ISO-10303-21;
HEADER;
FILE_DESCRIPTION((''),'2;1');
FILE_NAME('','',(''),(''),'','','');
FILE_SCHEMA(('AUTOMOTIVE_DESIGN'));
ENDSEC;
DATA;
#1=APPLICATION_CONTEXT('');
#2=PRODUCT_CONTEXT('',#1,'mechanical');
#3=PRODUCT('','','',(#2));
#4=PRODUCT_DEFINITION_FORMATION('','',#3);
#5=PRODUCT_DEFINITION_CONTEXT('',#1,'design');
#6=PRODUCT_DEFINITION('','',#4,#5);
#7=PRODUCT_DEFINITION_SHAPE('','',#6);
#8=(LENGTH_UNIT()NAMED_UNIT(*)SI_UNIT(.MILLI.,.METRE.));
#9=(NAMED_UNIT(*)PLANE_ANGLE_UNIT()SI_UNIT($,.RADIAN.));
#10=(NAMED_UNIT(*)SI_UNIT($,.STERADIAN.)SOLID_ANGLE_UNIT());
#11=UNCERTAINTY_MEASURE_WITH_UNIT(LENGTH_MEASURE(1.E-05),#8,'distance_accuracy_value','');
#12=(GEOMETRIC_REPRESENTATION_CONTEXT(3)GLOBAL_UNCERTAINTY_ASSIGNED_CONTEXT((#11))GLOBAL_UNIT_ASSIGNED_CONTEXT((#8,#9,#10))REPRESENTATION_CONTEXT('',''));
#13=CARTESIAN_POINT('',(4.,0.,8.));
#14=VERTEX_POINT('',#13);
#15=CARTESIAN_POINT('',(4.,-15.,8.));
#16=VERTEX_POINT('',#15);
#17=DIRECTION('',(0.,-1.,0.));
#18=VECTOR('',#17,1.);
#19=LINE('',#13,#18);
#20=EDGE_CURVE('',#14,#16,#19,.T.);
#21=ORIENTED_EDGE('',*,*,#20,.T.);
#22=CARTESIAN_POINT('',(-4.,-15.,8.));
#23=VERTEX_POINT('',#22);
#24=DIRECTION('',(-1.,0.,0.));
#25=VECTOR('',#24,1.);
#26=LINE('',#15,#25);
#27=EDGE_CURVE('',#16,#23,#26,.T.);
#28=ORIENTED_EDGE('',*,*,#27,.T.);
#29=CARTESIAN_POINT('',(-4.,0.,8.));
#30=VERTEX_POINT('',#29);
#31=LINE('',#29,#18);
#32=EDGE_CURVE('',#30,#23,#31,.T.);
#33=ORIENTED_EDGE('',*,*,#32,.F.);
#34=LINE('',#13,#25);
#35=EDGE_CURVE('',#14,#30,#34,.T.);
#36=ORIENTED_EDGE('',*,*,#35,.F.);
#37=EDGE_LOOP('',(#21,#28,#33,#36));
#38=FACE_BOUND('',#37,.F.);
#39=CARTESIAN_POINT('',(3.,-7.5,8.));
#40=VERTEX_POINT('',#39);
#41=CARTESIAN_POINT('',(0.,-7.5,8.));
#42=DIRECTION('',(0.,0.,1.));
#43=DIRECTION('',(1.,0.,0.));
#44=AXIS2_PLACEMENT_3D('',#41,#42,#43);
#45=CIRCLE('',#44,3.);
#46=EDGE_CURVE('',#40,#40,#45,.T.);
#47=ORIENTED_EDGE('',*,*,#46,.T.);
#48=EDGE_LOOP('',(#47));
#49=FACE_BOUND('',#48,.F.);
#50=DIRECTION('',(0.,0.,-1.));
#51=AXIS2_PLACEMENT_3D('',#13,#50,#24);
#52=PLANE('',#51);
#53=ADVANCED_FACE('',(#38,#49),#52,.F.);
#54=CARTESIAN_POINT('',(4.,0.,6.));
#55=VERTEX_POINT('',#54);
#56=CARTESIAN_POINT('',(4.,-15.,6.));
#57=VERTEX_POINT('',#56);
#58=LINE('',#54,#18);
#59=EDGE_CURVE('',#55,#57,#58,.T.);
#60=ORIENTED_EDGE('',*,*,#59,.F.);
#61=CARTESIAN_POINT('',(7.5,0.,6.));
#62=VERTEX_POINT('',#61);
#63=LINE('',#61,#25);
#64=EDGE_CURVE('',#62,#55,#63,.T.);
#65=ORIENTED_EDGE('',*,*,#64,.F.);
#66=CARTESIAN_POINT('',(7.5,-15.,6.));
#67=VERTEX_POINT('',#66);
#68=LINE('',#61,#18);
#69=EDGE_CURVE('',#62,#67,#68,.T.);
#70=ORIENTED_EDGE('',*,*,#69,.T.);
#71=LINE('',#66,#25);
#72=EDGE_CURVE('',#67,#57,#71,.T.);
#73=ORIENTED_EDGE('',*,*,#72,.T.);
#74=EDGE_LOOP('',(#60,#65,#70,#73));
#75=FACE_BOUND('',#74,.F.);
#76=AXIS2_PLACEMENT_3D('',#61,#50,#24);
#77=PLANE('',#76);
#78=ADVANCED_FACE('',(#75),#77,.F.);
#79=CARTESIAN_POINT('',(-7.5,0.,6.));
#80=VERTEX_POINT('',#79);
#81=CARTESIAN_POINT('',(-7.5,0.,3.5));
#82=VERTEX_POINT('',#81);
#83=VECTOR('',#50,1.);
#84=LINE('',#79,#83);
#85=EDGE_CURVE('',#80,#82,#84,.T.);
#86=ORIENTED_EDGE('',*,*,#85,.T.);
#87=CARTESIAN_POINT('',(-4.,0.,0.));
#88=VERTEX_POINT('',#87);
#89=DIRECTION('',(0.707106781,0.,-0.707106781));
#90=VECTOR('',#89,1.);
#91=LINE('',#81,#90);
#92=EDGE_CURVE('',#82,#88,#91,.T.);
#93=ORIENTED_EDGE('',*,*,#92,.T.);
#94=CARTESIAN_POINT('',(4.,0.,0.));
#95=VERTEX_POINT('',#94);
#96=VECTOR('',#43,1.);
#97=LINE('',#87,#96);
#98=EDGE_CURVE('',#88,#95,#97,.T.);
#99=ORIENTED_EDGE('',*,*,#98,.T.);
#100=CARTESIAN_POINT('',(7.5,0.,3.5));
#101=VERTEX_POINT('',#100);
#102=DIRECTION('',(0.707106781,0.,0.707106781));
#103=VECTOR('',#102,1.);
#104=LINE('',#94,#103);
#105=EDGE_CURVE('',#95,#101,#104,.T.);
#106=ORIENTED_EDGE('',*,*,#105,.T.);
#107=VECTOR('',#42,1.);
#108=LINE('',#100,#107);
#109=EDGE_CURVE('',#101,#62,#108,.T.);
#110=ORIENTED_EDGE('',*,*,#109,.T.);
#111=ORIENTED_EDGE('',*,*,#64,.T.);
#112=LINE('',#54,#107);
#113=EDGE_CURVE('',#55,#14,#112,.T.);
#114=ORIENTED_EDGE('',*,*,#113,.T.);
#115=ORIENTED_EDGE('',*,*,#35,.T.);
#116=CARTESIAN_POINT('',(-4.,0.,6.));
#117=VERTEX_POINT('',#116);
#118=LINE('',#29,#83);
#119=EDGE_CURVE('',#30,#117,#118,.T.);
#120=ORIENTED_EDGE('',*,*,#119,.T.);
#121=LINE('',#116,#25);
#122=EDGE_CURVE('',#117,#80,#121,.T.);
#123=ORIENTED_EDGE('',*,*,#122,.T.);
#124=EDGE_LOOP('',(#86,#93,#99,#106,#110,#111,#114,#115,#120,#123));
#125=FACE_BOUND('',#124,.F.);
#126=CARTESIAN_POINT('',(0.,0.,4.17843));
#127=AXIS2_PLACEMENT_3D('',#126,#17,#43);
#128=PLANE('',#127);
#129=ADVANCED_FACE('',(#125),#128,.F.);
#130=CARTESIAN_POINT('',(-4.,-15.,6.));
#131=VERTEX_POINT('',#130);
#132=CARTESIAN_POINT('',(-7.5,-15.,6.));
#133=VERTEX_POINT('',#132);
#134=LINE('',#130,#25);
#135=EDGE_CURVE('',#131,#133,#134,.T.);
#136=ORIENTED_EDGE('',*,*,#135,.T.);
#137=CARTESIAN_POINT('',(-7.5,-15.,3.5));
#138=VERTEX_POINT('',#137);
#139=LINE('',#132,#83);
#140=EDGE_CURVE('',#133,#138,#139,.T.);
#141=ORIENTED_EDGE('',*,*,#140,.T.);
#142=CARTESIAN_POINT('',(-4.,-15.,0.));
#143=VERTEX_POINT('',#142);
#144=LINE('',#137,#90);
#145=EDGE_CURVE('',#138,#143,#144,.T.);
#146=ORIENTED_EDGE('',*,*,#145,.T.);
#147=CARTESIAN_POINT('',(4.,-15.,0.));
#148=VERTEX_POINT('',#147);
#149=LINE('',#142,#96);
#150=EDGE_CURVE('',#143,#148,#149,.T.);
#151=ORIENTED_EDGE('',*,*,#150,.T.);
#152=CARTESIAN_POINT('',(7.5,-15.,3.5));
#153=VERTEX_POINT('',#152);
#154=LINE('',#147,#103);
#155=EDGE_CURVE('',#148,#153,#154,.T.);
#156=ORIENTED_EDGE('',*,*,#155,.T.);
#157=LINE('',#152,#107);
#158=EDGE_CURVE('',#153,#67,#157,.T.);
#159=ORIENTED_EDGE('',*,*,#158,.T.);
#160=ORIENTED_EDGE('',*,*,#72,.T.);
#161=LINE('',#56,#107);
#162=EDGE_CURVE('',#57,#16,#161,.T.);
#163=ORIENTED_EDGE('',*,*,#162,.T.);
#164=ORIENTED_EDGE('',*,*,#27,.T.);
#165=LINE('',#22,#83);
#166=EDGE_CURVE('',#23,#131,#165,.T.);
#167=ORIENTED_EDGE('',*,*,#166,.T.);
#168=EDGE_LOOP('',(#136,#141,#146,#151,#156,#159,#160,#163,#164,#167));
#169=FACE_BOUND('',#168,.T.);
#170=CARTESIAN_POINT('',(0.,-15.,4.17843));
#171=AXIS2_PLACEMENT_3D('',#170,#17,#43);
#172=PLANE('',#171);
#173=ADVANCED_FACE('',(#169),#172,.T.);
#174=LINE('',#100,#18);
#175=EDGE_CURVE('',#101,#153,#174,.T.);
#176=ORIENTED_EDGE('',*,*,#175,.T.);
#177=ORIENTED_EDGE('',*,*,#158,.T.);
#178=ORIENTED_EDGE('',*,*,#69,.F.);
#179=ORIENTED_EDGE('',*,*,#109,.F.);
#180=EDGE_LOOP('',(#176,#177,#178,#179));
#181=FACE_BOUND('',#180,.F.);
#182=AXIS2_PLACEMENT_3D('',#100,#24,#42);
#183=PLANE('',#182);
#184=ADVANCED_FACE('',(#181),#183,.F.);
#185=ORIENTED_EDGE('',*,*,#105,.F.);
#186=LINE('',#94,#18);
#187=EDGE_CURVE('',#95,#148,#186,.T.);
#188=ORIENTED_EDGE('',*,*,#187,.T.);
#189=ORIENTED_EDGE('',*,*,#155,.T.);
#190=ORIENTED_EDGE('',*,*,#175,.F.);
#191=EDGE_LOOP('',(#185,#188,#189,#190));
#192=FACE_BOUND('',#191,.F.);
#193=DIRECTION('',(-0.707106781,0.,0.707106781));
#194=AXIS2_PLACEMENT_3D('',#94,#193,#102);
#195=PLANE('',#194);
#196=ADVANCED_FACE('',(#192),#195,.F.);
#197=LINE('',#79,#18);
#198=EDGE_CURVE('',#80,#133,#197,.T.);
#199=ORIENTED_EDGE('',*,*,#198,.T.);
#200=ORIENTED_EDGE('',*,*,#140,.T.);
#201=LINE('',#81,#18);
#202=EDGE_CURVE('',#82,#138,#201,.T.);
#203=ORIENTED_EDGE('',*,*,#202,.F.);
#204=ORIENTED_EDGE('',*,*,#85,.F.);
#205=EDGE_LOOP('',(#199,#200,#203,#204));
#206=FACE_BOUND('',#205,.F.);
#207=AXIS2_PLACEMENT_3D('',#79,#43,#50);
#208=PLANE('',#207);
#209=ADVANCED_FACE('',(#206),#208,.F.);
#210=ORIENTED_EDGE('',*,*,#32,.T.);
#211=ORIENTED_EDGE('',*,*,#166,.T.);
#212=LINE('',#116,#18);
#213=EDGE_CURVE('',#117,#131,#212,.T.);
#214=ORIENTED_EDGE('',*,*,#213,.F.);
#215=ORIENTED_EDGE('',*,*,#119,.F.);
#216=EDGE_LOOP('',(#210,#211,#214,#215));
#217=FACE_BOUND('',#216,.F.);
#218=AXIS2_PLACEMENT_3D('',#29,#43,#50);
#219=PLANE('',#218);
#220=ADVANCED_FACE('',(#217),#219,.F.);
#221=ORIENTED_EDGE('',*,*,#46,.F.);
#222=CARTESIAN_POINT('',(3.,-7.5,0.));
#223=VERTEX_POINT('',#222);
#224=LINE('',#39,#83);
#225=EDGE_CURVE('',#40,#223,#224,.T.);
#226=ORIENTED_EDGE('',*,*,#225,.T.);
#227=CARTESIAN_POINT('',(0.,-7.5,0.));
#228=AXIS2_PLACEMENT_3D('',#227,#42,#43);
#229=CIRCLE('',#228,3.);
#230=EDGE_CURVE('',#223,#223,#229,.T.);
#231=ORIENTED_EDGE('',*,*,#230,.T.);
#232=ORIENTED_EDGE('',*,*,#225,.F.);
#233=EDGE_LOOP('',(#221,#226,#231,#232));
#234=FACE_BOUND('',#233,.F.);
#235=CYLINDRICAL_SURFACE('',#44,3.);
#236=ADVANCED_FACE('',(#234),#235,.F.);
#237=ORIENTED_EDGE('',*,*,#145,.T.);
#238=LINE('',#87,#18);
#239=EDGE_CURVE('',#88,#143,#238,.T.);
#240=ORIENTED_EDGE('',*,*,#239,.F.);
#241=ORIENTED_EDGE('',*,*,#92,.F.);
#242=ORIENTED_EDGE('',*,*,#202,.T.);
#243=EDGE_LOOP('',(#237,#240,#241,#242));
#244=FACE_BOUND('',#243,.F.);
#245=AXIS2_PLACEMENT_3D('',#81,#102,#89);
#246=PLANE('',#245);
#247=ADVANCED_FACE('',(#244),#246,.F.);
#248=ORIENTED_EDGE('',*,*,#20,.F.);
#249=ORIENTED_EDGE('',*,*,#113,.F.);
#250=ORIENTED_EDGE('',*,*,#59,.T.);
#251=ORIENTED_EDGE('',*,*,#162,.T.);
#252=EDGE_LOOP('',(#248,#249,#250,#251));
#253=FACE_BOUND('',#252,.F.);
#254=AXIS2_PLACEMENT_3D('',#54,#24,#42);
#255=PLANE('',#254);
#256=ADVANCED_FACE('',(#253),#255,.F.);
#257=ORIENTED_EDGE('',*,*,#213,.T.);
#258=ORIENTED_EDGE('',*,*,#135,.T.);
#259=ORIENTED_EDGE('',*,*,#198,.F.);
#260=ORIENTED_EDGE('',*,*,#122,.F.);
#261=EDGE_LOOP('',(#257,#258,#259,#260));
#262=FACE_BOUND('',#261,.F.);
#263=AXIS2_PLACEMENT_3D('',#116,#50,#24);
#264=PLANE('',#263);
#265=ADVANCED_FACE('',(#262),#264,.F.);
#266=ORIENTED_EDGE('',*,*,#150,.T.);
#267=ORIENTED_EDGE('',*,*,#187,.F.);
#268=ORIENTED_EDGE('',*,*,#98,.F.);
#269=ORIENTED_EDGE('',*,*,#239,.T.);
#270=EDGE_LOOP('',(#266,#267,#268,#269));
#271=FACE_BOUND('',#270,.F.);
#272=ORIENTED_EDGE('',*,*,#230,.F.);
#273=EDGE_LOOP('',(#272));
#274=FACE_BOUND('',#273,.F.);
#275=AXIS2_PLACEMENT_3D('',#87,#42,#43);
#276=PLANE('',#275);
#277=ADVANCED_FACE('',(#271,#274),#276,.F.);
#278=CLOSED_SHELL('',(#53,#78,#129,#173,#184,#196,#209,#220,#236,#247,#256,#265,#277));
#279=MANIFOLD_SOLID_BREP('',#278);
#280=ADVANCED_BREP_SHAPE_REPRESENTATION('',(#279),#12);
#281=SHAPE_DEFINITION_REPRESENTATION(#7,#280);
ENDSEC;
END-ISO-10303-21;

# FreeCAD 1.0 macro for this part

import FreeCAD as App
import Part
import Sketcher
Q = App.Units.Quantity

doc = App.newDocument("Part")
body = doc.addObject("PartDesign::Body", "Body")

# Sketch on XZ plane
sketch1 = body.newObject("Sketcher::SketchObject", "Sketch")
sketch1.AttachmentSupport = (doc.getObject("XZ_Plane"), [""])
sketch1.MapMode = "FlatFace"
sketch1.addGeometry([
    Part.LineSegment(App.Vector(-4, 0, 0), App.Vector(4, 0, 0)),  # 0
    Part.LineSegment(App.Vector(4, 0, 0), App.Vector(7.5, 3.5, 0)),  # 1
    Part.LineSegment(App.Vector(7.5, 3.5, 0), App.Vector(7.5, 6, 0)),  # 2
    Part.LineSegment(App.Vector(7.5, 6, 0), App.Vector(4, 6, 0)),  # 3
    Part.LineSegment(App.Vector(4, 6, 0), App.Vector(4, 8, 0)),  # 4
    Part.LineSegment(App.Vector(4, 8, 0), App.Vector(-4, 8, 0)),  # 5
    Part.LineSegment(App.Vector(-4, 8, 0), App.Vector(-4, 6, 0)),  # 6
    Part.LineSegment(App.Vector(-4, 6, 0), App.Vector(-7.5, 6, 0)),  # 7
    Part.LineSegment(App.Vector(-7.5, 6, 0), App.Vector(-7.5, 3.5, 0)),  # 8
    Part.LineSegment(App.Vector(-7.5, 3.5, 0), App.Vector(-4, 0, 0)),  # 9
], False)
sketch1.addConstraint([
    Sketcher.Constraint("Coincident", 0, 2, 1, 1),
    Sketcher.Constraint("Coincident", 1, 2, 2, 1),
    Sketcher.Constraint("Coincident", 2, 2, 3, 1),
    Sketcher.Constraint("Coincident", 3, 2, 4, 1),
    Sketcher.Constraint("Coincident", 4, 2, 5, 1),
    Sketcher.Constraint("Coincident", 5, 2, 6, 1),
    Sketcher.Constraint("Coincident", 6, 2, 7, 1),
    Sketcher.Constraint("Coincident", 7, 2, 8, 1),
    Sketcher.Constraint("Coincident", 8, 2, 9, 1),
    Sketcher.Constraint("Coincident", 9, 2, 0, 1),
    Sketcher.Constraint("Horizontal", 0),
    Sketcher.Constraint("Vertical", 2),
    Sketcher.Constraint("Horizontal", 3),
    Sketcher.Constraint("Vertical", 4),
    Sketcher.Constraint("Horizontal", 5),
    Sketcher.Constraint("Vertical", 6),
    Sketcher.Constraint("Horizontal", 7),
    Sketcher.Constraint("Vertical", 8),
    Sketcher.Constraint("Symmetric", 0, 2, 9, 2, -1, 1),
    Sketcher.Constraint("Symmetric", 3, 2, 6, 2, -2),
    Sketcher.Constraint("Symmetric", 1, 2, 8, 2, -2),
    Sketcher.Constraint("Perpendicular", 1, 9),
    Sketcher.Constraint("Vertical", 0, 2, 3, 2),
    Sketcher.Constraint("DistanceX", 0, 1, 0, 2, Q("8 mm")),
    Sketcher.Constraint("DistanceY", 4, 1, 4, 2, Q("2 mm")),
    Sketcher.Constraint("DistanceX", 3, 2, 3, 1, Q("3.5 mm")),
    Sketcher.Constraint("DistanceY", 2, 1, 2, 2, Q("2.5 mm")),
])
pad1 = body.newObject("PartDesign::Pad", "Pad")
pad1.Profile = sketch1
pad1.Length = 15

# Sketch on XY plane
sketch2 = body.newObject("Sketcher::SketchObject", "Sketch001")
sketch2.AttachmentSupport = (doc.getObject("XY_Plane"), [""])
sketch2.MapMode = "FlatFace"
sketch2.AttachmentOffset = App.Placement(App.Vector(0, 0, 8), App.Rotation())
sketch2.addGeometry(Part.Circle(App.Vector(0, -7.5, 0), App.Vector(0, 0, 1), 3), False)
sketch2.addConstraint([
    Sketcher.Constraint("PointOnObject", 0, 3, -2),
    Sketcher.Constraint("Diameter", 0, Q("6 mm")),
    Sketcher.Constraint("DistanceY", 0, 3, -1, 1, Q("7.5 mm")),
])
pocket1 = body.newObject("PartDesign::Pocket", "Pocket")
pocket1.Profile = sketch2
pocket1.Type = "ThroughAll"

doc.recompute()
